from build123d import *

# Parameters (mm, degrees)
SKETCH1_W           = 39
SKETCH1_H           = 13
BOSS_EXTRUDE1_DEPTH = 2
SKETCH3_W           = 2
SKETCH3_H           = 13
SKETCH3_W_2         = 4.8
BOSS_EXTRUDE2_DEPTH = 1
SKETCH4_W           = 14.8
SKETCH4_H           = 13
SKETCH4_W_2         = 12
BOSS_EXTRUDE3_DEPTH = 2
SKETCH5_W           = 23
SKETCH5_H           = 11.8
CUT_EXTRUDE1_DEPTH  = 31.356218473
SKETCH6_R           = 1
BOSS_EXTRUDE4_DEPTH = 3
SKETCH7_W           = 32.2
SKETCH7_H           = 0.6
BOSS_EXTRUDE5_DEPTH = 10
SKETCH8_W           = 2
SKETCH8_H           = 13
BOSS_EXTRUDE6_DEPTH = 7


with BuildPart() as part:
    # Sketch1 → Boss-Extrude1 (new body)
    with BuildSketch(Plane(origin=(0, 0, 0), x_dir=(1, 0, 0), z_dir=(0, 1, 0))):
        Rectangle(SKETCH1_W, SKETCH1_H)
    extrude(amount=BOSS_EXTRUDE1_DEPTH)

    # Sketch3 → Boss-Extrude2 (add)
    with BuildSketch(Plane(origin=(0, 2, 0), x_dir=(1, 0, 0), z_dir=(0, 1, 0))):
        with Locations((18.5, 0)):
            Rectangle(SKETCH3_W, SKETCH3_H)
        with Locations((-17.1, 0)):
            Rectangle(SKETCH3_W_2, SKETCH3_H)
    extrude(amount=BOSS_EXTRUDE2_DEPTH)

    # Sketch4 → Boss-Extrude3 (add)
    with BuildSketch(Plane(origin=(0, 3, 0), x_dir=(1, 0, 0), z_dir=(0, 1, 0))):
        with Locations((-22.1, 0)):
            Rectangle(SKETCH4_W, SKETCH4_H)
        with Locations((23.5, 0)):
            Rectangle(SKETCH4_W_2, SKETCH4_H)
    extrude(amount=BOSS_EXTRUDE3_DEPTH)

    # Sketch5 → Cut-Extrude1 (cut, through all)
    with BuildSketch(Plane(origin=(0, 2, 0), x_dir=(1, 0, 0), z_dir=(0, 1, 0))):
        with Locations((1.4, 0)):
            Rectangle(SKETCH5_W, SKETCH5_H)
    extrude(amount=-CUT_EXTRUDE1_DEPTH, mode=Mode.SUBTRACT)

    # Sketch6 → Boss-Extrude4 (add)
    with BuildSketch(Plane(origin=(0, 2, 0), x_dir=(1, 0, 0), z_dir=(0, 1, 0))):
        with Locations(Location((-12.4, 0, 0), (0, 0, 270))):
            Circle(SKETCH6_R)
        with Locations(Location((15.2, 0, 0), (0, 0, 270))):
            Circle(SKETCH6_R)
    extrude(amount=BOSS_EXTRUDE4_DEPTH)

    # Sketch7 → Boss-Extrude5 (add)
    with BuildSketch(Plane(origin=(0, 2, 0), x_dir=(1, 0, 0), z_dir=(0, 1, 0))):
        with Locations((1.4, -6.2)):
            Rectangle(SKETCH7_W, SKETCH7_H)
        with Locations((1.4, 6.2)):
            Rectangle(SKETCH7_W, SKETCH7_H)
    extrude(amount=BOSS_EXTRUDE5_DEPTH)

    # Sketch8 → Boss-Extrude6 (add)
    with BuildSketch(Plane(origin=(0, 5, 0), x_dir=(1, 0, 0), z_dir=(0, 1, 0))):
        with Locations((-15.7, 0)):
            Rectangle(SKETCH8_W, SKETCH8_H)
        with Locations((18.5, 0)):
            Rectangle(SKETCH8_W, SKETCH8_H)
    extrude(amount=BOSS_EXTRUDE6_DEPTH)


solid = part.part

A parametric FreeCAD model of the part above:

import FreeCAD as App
import Part
import Sketcher
from FreeCAD import Vector
Q = App.Units.Quantity

doc = App.newDocument("Part")
params = doc.addObject("Spreadsheet::Sheet", "Params")
for row, (alias, value) in enumerate([
    ("sketch1_width", "39 mm"),
    ("sketch1_height", "13 mm"),
    ("pad1_length", "2 mm"),
    ("sketch2_width", "2 mm"),
    ("sketch2_height", "13 mm"),
    ("sketch2_width2", "4.8 mm"),
    ("pad2_length", "1 mm"),
    ("sketch3_width", "12 mm"),
    ("sketch3_height", "13 mm"),
    ("sketch3_width2", "14.8 mm"),
    ("pad3_length", "2 mm"),
    ("sketch4_width", "23 mm"),
    ("sketch4_height", "11.8 mm"),
    ("sketch5_diameter", "2 mm"),
    ("pad4_length", "3 mm"),
    ("sketch6_width", "32.2 mm"),
    ("sketch6_height", "0.6 mm"),
    ("pad5_length", "10 mm"),
    ("sketch7_width", "2 mm"),
    ("sketch7_height", "13 mm"),
    ("pad6_length", "7 mm"),
], start=1):
    params.set(f"A{row}", alias)
    params.set(f"B{row}", "=" + value)
    params.setAlias(f"B{row}", alias)

body = doc.addObject("PartDesign::Body", "Body")

# Sketch on XZ plane
sketch1 = body.newObject("Sketcher::SketchObject", "Sketch")
sketch1.AttachmentSupport = (doc.getObject("XZ_Plane"), [""])
sketch1.MapMode = "FlatFace"
sketch1.addGeometry(Part.LineSegment(Vector(-20, -6, 0), Vector(-20, 6, 0)), False)
sketch1.addGeometry(Part.LineSegment(Vector(-20, 6, 0), Vector(20, 6, 0)), False)
sketch1.addGeometry(Part.LineSegment(Vector(20, 6, 0), Vector(20, -6, 0)), False)
sketch1.addGeometry(Part.LineSegment(Vector(20, -6, 0), Vector(-20, -6, 0)), False)
sketch1.addConstraint(Sketcher.Constraint("Coincident", 0, 2, 1, 1))
sketch1.addConstraint(Sketcher.Constraint("Coincident", 1, 2, 2, 1))
sketch1.addConstraint(Sketcher.Constraint("Coincident", 2, 2, 3, 1))
sketch1.addConstraint(Sketcher.Constraint("Coincident", 3, 2, 0, 1))
sketch1.addConstraint(Sketcher.Constraint("Vertical", 0))
sketch1.addConstraint(Sketcher.Constraint("Horizontal", 1))
sketch1.addConstraint(Sketcher.Constraint("Vertical", 2))
sketch1.addConstraint(Sketcher.Constraint("Horizontal", 3))
sketch1.addConstraint(Sketcher.Constraint("Symmetric", 0, 2, 2, 2, -1, 1))
sketch1.addConstraint(Sketcher.Constraint("DistanceX", 1, 1, 1, 2, Q("39 mm")))
sketch1.addConstraint(Sketcher.Constraint("DistanceY", 0, 1, 0, 2, Q("13 mm")))
sketch1.setExpression("Constraints[9]", "Params.sketch1_width")
sketch1.setExpression("Constraints[10]", "Params.sketch1_height")
pad1 = body.newObject("PartDesign::Pad", "Pad")
pad1.Profile = sketch1
pad1.setExpression("Length", "Params.pad1_length")
pad1.Reversed = True

# Sketch on XZ plane
sketch2 = body.newObject("Sketcher::SketchObject", "Sketch001")
sketch2.AttachmentSupport = (doc.getObject("XZ_Plane"), [""])
sketch2.MapMode = "FlatFace"
sketch2.AttachmentOffset = App.Placement(Vector(0, 0, -2), App.Rotation())
sketch2.addGeometry(Part.LineSegment(Vector(17.5, -6.5, 0), Vector(17.5, 6.5, 0)), False)
sketch2.addGeometry(Part.LineSegment(Vector(17.5, 6.5, 0), Vector(19.5, 6.5, 0)), False)
sketch2.addGeometry(Part.LineSegment(Vector(19.5, 6.5, 0), Vector(19.5, -6.5, 0)), False)
sketch2.addGeometry(Part.LineSegment(Vector(19.5, -6.5, 0), Vector(17.5, -6.5, 0)), False)
sketch2.addGeometry(Part.LineSegment(Vector(-19.5, -6.5, 0), Vector(-19.5, 6.5, 0)), False)
sketch2.addGeometry(Part.LineSegment(Vector(-19.5, 6.5, 0), Vector(-14.7, 6.5, 0)), False)
sketch2.addGeometry(Part.LineSegment(Vector(-14.7, 6.5, 0), Vector(-14.7, -6.5, 0)), False)
sketch2.addGeometry(Part.LineSegment(Vector(-14.7, -6.5, 0), Vector(-19.5, -6.5, 0)), False)
sketch2.addConstraint(Sketcher.Constraint("Coincident", 0, 2, 1, 1))
sketch2.addConstraint(Sketcher.Constraint("Coincident", 1, 2, 2, 1))
sketch2.addConstraint(Sketcher.Constraint("Coincident", 2, 2, 3, 1))
sketch2.addConstraint(Sketcher.Constraint("Coincident", 3, 2, 0, 1))
sketch2.addConstraint(Sketcher.Constraint("Coincident", 4, 2, 5, 1))
sketch2.addConstraint(Sketcher.Constraint("Coincident", 5, 2, 6, 1))
sketch2.addConstraint(Sketcher.Constraint("Coincident", 6, 2, 7, 1))
sketch2.addConstraint(Sketcher.Constraint("Coincident", 7, 2, 4, 1))
sketch2.addConstraint(Sketcher.Constraint("Vertical", 0))
sketch2.addConstraint(Sketcher.Constraint("Horizontal", 1))
sketch2.addConstraint(Sketcher.Constraint("Vertical", 2))
sketch2.addConstraint(Sketcher.Constraint("Horizontal", 3))
sketch2.addConstraint(Sketcher.Constraint("Vertical", 4))
sketch2.addConstraint(Sketcher.Constraint("Horizontal", 5))
sketch2.addConstraint(Sketcher.Constraint("Vertical", 6))
sketch2.addConstraint(Sketcher.Constraint("Horizontal", 7))
sketch2.addConstraint(Sketcher.Constraint("Symmetric", 2, 2, 4, 2, -1, 1))
sketch2.addConstraint(Sketcher.Constraint("Horizontal", 1, 2, 4, 2))
sketch2.addConstraint(Sketcher.Constraint("Horizontal", 3, 2, 6, 2))
sketch2.addConstraint(Sketcher.Constraint("DistanceX", 1, 1, 1, 2, Q("2 mm")))
sketch2.addConstraint(Sketcher.Constraint("DistanceY", 0, 1, 0, 2, Q("13 mm")))
sketch2.addConstraint(Sketcher.Constraint("DistanceX", 5, 1, 5, 2, Q("4.8 mm")))
sketch2.addConstraint(Sketcher.Constraint("DistanceX", 4, 2, 0, 2, Q("37 mm")))
sketch2.setExpression("Constraints[19]", "Params.sketch2_width")
sketch2.setExpression("Constraints[20]", "Params.sketch2_height")
sketch2.setExpression("Constraints[21]", "Params.sketch2_width2")
pad2 = body.newObject("PartDesign::Pad", "Pad001")
pad2.Profile = sketch2
pad2.setExpression("Length", "Params.pad2_length")
pad2.Reversed = True

# Sketch on XZ plane
sketch3 = body.newObject("Sketcher::SketchObject", "Sketch002")
sketch3.AttachmentSupport = (doc.getObject("XZ_Plane"), [""])
sketch3.MapMode = "FlatFace"
sketch3.AttachmentOffset = App.Placement(Vector(0, 0, -3), App.Rotation())
sketch3.addGeometry(Part.LineSegment(Vector(-30, -6, 0), Vector(-30, 6, 0)), False)
sketch3.addGeometry(Part.LineSegment(Vector(-30, 6, 0), Vector(-15, 6, 0)), False)
sketch3.addGeometry(Part.LineSegment(Vector(-15, 6, 0), Vector(-15, -6, 0)), False)
sketch3.addGeometry(Part.LineSegment(Vector(-15, -6, 0), Vector(-30, -6, 0)), False)
sketch3.addGeometry(Part.LineSegment(Vector(18, -6, 0), Vector(18, 6, 0)), False)
sketch3.addGeometry(Part.LineSegment(Vector(18, 6, 0), Vector(30, 6, 0)), False)
sketch3.addGeometry(Part.LineSegment(Vector(30, 6, 0), Vector(30, -6, 0)), False)
sketch3.addGeometry(Part.LineSegment(Vector(30, -6, 0), Vector(18, -6, 0)), False)
sketch3.addConstraint(Sketcher.Constraint("Coincident", 0, 2, 1, 1))
sketch3.addConstraint(Sketcher.Constraint("Coincident", 1, 2, 2, 1))
sketch3.addConstraint(Sketcher.Constraint("Coincident", 2, 2, 3, 1))
sketch3.addConstraint(Sketcher.Constraint("Coincident", 3, 2, 0, 1))
sketch3.addConstraint(Sketcher.Constraint("Coincident", 4, 2, 5, 1))
sketch3.addConstraint(Sketcher.Constraint("Coincident", 5, 2, 6, 1))
sketch3.addConstraint(Sketcher.Constraint("Coincident", 6, 2, 7, 1))
sketch3.addConstraint(Sketcher.Constraint("Coincident", 7, 2, 4, 1))
sketch3.addConstraint(Sketcher.Constraint("Vertical", 0))
sketch3.addConstraint(Sketcher.Constraint("Horizontal", 1))
sketch3.addConstraint(Sketcher.Constraint("Vertical", 2))
sketch3.addConstraint(Sketcher.Constraint("Horizontal", 3))
sketch3.addConstraint(Sketcher.Constraint("Vertical", 4))
sketch3.addConstraint(Sketcher.Constraint("Horizontal", 5))
sketch3.addConstraint(Sketcher.Constraint("Vertical", 6))
sketch3.addConstraint(Sketcher.Constraint("Horizontal", 7))
sketch3.addConstraint(Sketcher.Constraint("Symmetric", 3, 2, 5, 2, -1, 1))
sketch3.addConstraint(Sketcher.Constraint("Horizontal", 1, 2, 4, 2))
sketch3.addConstraint(Sketcher.Constraint("Horizontal", 3, 2, 6, 2))
sketch3.addConstraint(Sketcher.Constraint("DistanceX", 5, 1, 5, 2, Q("12 mm")))
sketch3.addConstraint(Sketcher.Constraint("DistanceY", 0, 1, 0, 2, Q("13 mm")))
sketch3.addConstraint(Sketcher.Constraint("DistanceX", 1, 1, 1, 2, Q("14.8 mm")))
sketch3.addConstraint(Sketcher.Constraint("DistanceX", 0, 2, 4, 2, Q("47 mm")))
sketch3.setExpression("Constraints[19]", "Params.sketch3_width")
sketch3.setExpression("Constraints[20]", "Params.sketch3_height")
sketch3.setExpression("Constraints[21]", "Params.sketch3_width2")
pad3 = body.newObject("PartDesign::Pad", "Pad002")
pad3.Profile = sketch3
pad3.setExpression("Length", "Params.pad3_length")
pad3.Reversed = True

# Sketch on XZ plane
sketch4 = body.newObject("Sketcher::SketchObject", "Sketch003")
sketch4.AttachmentSupport = (doc.getObject("XZ_Plane"), [""])
sketch4.MapMode = "FlatFace"
sketch4.AttachmentOffset = App.Placement(Vector(0, 0, -2), App.Rotation())
sketch4.addGeometry(Part.LineSegment(Vector(-10, -6, 0), Vector(-10, 6, 0)), False)
sketch4.addGeometry(Part.LineSegment(Vector(-10, 6, 0), Vector(13, 6, 0)), False)
sketch4.addGeometry(Part.LineSegment(Vector(13, 6, 0), Vector(13, -6, 0)), False)
sketch4.addGeometry(Part.LineSegment(Vector(13, -6, 0), Vector(-10, -6, 0)), False)
sketch4.addConstraint(Sketcher.Constraint("Coincident", 0, 2, 1, 1))
sketch4.addConstraint(Sketcher.Constraint("Coincident", 1, 2, 2, 1))
sketch4.addConstraint(Sketcher.Constraint("Coincident", 2, 2, 3, 1))
sketch4.addConstraint(Sketcher.Constraint("Coincident", 3, 2, 0, 1))
sketch4.addConstraint(Sketcher.Constraint("Vertical", 0))
sketch4.addConstraint(Sketcher.Constraint("Horizontal", 1))
sketch4.addConstraint(Sketcher.Constraint("Vertical", 2))
sketch4.addConstraint(Sketcher.Constraint("Horizontal", 3))
sketch4.addConstraint(Sketcher.Constraint("DistanceX", 1, 1, 1, 2, Q("23 mm")))
sketch4.addConstraint(Sketcher.Constraint("DistanceY", 0, 1, 0, 2, Q("11.8 mm")))
sketch4.addConstraint(Sketcher.Constraint("DistanceX", 0, 2, -1, 1, Q("10.1 mm")))
sketch4.addConstraint(Sketcher.Constraint("DistanceY", -1, 1, 0, 2, Q("5.9 mm")))
sketch4.setExpression("Constraints[8]", "Params.sketch4_width")
sketch4.setExpression("Constraints[9]", "Params.sketch4_height")
pocket1 = body.newObject("PartDesign::Pocket", "Pocket")
pocket1.Profile = sketch4
pocket1.Type = "ThroughAll"
pocket1.Reversed = True

# Sketch on XZ plane
sketch5 = body.newObject("Sketcher::SketchObject", "Sketch004")
sketch5.AttachmentSupport = (doc.getObject("XZ_Plane"), [""])
sketch5.MapMode = "FlatFace"
sketch5.AttachmentOffset = App.Placement(Vector(0, 0, -2), App.Rotation())
sketch5.addGeometry(Part.Circle(Vector(-12.4, 0, 0), Vector(0, 0, 1), 1), False)
sketch5.addGeometry(Part.Circle(Vector(15.2, 0, 0), Vector(0, 0, 1), 1), False)
sketch5.addConstraint(Sketcher.Constraint("Equal", 0, 1))
sketch5.addConstraint(Sketcher.Constraint("PointOnObject", 0, 3, -1))
sketch5.addConstraint(Sketcher.Constraint("PointOnObject", 1, 3, -1))
sketch5.addConstraint(Sketcher.Constraint("Diameter", 0, Q("2 mm")))
sketch5.addConstraint(Sketcher.Constraint("DistanceX", 0, 3, -1, 1, Q("12.4 mm")))
sketch5.addConstraint(Sketcher.Constraint("DistanceX", -1, 1, 1, 3, Q("15.2 mm")))
sketch5.setExpression("Constraints[3]", "Params.sketch5_diameter")
pad4 = body.newObject("PartDesign::Pad", "Pad003")
pad4.Profile = sketch5
pad4.setExpression("Length", "Params.pad4_length")
pad4.Reversed = True

# Sketch on XZ plane
sketch6 = body.newObject("Sketcher::SketchObject", "Sketch005")
sketch6.AttachmentSupport = (doc.getObject("XZ_Plane"), [""])
sketch6.MapMode = "FlatFace"
sketch6.AttachmentOffset = App.Placement(Vector(0, 0, -2), App.Rotation())
sketch6.addGeometry(Part.LineSegment(Vector(-14.7, 5.9, 0), Vector(-14.7, 6.5, 0)), False)
sketch6.addGeometry(Part.LineSegment(Vector(-14.7, 6.5, 0), Vector(17.5, 6.5, 0)), False)
sketch6.addGeometry(Part.LineSegment(Vector(17.5, 6.5, 0), Vector(17.5, 5.9, 0)), False)
sketch6.addGeometry(Part.LineSegment(Vector(17.5, 5.9, 0), Vector(-14.7, 5.9, 0)), False)
sketch6.addGeometry(Part.LineSegment(Vector(-14.7, -6.5, 0), Vector(-14.7, -5.9, 0)), False)
sketch6.addGeometry(Part.LineSegment(Vector(-14.7, -5.9, 0), Vector(17.5, -5.9, 0)), False)
sketch6.addGeometry(Part.LineSegment(Vector(17.5, -5.9, 0), Vector(17.5, -6.5, 0)), False)
sketch6.addGeometry(Part.LineSegment(Vector(17.5, -6.5, 0), Vector(-14.7, -6.5, 0)), False)
sketch6.addConstraint(Sketcher.Constraint("Coincident", 0, 2, 1, 1))
sketch6.addConstraint(Sketcher.Constraint("Coincident", 1, 2, 2, 1))
sketch6.addConstraint(Sketcher.Constraint("Coincident", 2, 2, 3, 1))
sketch6.addConstraint(Sketcher.Constraint("Coincident", 3, 2, 0, 1))
sketch6.addConstraint(Sketcher.Constraint("Coincident", 4, 2, 5, 1))
sketch6.addConstraint(Sketcher.Constraint("Coincident", 5, 2, 6, 1))
sketch6.addConstraint(Sketcher.Constraint("Coincident", 6, 2, 7, 1))
sketch6.addConstraint(Sketcher.Constraint("Coincident", 7, 2, 4, 1))
sketch6.addConstraint(Sketcher.Constraint("Vertical", 0))
sketch6.addConstraint(Sketcher.Constraint("Horizontal", 1))
sketch6.addConstraint(Sketcher.Constraint("Vertical", 2))
sketch6.addConstraint(Sketcher.Constraint("Horizontal", 3))
sketch6.addConstraint(Sketcher.Constraint("Vertical", 4))
sketch6.addConstraint(Sketcher.Constraint("Horizontal", 5))
sketch6.addConstraint(Sketcher.Constraint("Vertical", 6))
sketch6.addConstraint(Sketcher.Constraint("Horizontal", 7))
sketch6.addConstraint(Sketcher.Constraint("Symmetric", 3, 2, 4, 2, -1))
sketch6.addConstraint(Sketcher.Constraint("Symmetric", 1, 2, 6, 2, -1))
sketch6.addConstraint(Sketcher.Constraint("DistanceX", 1, 1, 1, 2, Q("32.2 mm")))
sketch6.addConstraint(Sketcher.Constraint("DistanceY", 0, 1, 0, 2, Q("0.6 mm")))
sketch6.addConstraint(Sketcher.Constraint("DistanceY", 6, 2, 1, 2, Q("13 mm")))
sketch6.addConstraint(Sketcher.Constraint("DistanceX", 0, 2, -1, 1, Q("14.7 mm")))
sketch6.setExpression("Constraints[18]", "Params.sketch6_width")
sketch6.setExpression("Constraints[19]", "Params.sketch6_height")
pad5 = body.newObject("PartDesign::Pad", "Pad004")
pad5.Profile = sketch6
pad5.setExpression("Length", "Params.pad5_length")
pad5.Reversed = True

# Sketch on XZ plane
sketch7 = body.newObject("Sketcher::SketchObject", "Sketch006")
sketch7.AttachmentSupport = (doc.getObject("XZ_Plane"), [""])
sketch7.MapMode = "FlatFace"
sketch7.AttachmentOffset = App.Placement(Vector(0, 0, -5), App.Rotation())
sketch7.addGeometry(Part.LineSegment(Vector(-16.7, -6.5, 0), Vector(-16.7, 6.5, 0)), False)
sketch7.addGeometry(Part.LineSegment(Vector(-16.7, 6.5, 0), Vector(-14.7, 6.5, 0)), False)
sketch7.addGeometry(Part.LineSegment(Vector(-14.7, 6.5, 0), Vector(-14.7, -6.5, 0)), False)
sketch7.addGeometry(Part.LineSegment(Vector(-14.7, -6.5, 0), Vector(-16.7, -6.5, 0)), False)
sketch7.addGeometry(Part.LineSegment(Vector(17.5, -6.5, 0), Vector(17.5, 6.5, 0)), False)
sketch7.addGeometry(Part.LineSegment(Vector(17.5, 6.5, 0), Vector(19.5, 6.5, 0)), False)
sketch7.addGeometry(Part.LineSegment(Vector(19.5, 6.5, 0), Vector(19.5, -6.5, 0)), False)
sketch7.addGeometry(Part.LineSegment(Vector(19.5, -6.5, 0), Vector(17.5, -6.5, 0)), False)
sketch7.addConstraint(Sketcher.Constraint("Coincident", 0, 2, 1, 1))
sketch7.addConstraint(Sketcher.Constraint("Coincident", 1, 2, 2, 1))
sketch7.addConstraint(Sketcher.Constraint("Coincident", 2, 2, 3, 1))
sketch7.addConstraint(Sketcher.Constraint("Coincident", 3, 2, 0, 1))
sketch7.addConstraint(Sketcher.Constraint("Coincident", 4, 2, 5, 1))
sketch7.addConstraint(Sketcher.Constraint("Coincident", 5, 2, 6, 1))
sketch7.addConstraint(Sketcher.Constraint("Coincident", 6, 2, 7, 1))
sketch7.addConstraint(Sketcher.Constraint("Coincident", 7, 2, 4, 1))
sketch7.addConstraint(Sketcher.Constraint("Vertical", 0))
sketch7.addConstraint(Sketcher.Constraint("Horizontal", 1))
sketch7.addConstraint(Sketcher.Constraint("Vertical", 2))
sketch7.addConstraint(Sketcher.Constraint("Horizontal", 3))
sketch7.addConstraint(Sketcher.Constraint("Vertical", 4))
sketch7.addConstraint(Sketcher.Constraint("Horizontal", 5))
sketch7.addConstraint(Sketcher.Constraint("Vertical", 6))
sketch7.addConstraint(Sketcher.Constraint("Horizontal", 7))
sketch7.addConstraint(Sketcher.Constraint("Horizontal", 1, 2, 4, 2))
sketch7.addConstraint(Sketcher.Constraint("Horizontal", 3, 2, 6, 2))
sketch7.addConstraint(Sketcher.Constraint("Equal", 3, 5))
sketch7.addConstraint(Sketcher.Constraint("DistanceX", 1, 1, 1, 2, Q("2 mm")))
sketch7.addConstraint(Sketcher.Constraint("DistanceY", 0, 1, 0, 2, Q("13 mm")))
sketch7.addConstraint(Sketcher.Constraint("DistanceX", 0, 2, -1, 1, Q("16.7 mm")))
sketch7.addConstraint(Sketcher.Constraint("DistanceY", -1, 1, 0, 2, Q("6.5 mm")))
sketch7.addConstraint(Sketcher.Constraint("DistanceX", -1, 1, 4, 2, Q("17.5 mm")))
sketch7.setExpression("Constraints[19]", "Params.sketch7_width")
sketch7.setExpression("Constraints[20]", "Params.sketch7_height")
pad6 = body.newObject("PartDesign::Pad", "Pad005")
pad6.Profile = sketch7
pad6.setExpression("Length", "Params.pad6_length")
pad6.Reversed = True

doc.recompute()
